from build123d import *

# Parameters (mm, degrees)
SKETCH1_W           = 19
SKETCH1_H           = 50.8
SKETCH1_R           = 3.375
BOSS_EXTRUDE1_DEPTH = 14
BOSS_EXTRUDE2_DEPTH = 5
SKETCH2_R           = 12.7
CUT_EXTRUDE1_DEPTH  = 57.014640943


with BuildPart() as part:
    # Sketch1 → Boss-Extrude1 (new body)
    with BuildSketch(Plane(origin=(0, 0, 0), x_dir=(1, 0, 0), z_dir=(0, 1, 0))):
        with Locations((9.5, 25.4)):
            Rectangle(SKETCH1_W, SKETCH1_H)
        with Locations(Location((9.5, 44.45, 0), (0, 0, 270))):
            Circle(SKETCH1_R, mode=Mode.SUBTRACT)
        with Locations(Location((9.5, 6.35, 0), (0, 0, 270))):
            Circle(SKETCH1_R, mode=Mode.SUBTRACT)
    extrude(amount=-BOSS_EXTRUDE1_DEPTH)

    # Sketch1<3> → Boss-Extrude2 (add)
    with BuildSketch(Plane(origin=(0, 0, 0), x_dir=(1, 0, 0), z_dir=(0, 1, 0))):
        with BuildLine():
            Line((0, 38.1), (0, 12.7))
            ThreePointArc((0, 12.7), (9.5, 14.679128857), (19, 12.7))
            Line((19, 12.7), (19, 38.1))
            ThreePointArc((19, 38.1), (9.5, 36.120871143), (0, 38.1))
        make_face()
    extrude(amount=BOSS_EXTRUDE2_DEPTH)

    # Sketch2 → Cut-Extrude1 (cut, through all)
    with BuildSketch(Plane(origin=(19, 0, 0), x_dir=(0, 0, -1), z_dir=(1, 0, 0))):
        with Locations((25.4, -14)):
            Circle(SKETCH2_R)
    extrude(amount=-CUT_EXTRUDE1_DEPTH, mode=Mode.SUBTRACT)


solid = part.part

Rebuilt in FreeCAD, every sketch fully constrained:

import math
import FreeCAD as App
import Part
import Sketcher
Q = App.Units.Quantity

doc = App.newDocument("Part")
body = doc.addObject("PartDesign::Body", "Body")

# Sketch on XZ plane
sketch1 = doc.addObject("Sketcher::SketchObject", "Sketch")
body.addObject(sketch1)
sketch1.AttachmentSupport = (doc.XZ_Plane, [""])
sketch1.MapMode = "FlatFace"
sketch1.addGeometry(Part.LineSegment(App.Vector(0, -50.8, 0), App.Vector(0, 0, 0)), False)
sketch1.addGeometry(Part.LineSegment(App.Vector(0, 0, 0), App.Vector(19, 0, 0)), False)
sketch1.addGeometry(Part.LineSegment(App.Vector(19, 0, 0), App.Vector(19, -50.8, 0)), False)
sketch1.addGeometry(Part.LineSegment(App.Vector(19, -50.8, 0), App.Vector(0, -50.8, 0)), False)
sketch1.addGeometry(Part.Circle(App.Vector(9.5, -6.3, 0), App.Vector(0, 0, 1), 3.4), False)
sketch1.addGeometry(Part.Circle(App.Vector(9.5, -44.5, 0), App.Vector(0, 0, 1), 3.4), False)
sketch1.addConstraint(Sketcher.Constraint("Coincident", 0, 2, 1, 1))
sketch1.addConstraint(Sketcher.Constraint("Coincident", 1, 2, 2, 1))
sketch1.addConstraint(Sketcher.Constraint("Coincident", 2, 2, 3, 1))
sketch1.addConstraint(Sketcher.Constraint("Coincident", 3, 2, 0, 1))
sketch1.addConstraint(Sketcher.Constraint("Vertical", 0))
sketch1.addConstraint(Sketcher.Constraint("Horizontal", 1))
sketch1.addConstraint(Sketcher.Constraint("Vertical", 2))
sketch1.addConstraint(Sketcher.Constraint("Horizontal", 3))
sketch1.addConstraint(Sketcher.Constraint("Coincident", 0, 2, -1, 1))
sketch1.addConstraint(Sketcher.Constraint("Equal", 4, 5))
sketch1.addConstraint(Sketcher.Constraint("Vertical", 4, 3, 5, 3))
sketch1.addConstraint(Sketcher.Constraint("Diameter", 4, Q("6.75 mm")))
sketch1.addConstraint(Sketcher.Constraint("DistanceX", 1, 1, 1, 2, Q("19 mm")))
sketch1.addConstraint(Sketcher.Constraint("DistanceY", 0, 1, 0, 2, Q("50.8 mm")))
sketch1.addConstraint(Sketcher.Constraint("DistanceX", -1, 1, 4, 3, Q("9.5 mm")))
sketch1.addConstraint(Sketcher.Constraint("DistanceY", 5, 3, 4, 3, Q("38.1 mm")))
sketch1.addConstraint(Sketcher.Constraint("DistanceY", 4, 3, -1, 1, Q("6.35 mm")))
pad1 = doc.addObject("PartDesign::Pad", "Pad")
body.addObject(pad1)
pad1.Profile = sketch1
pad1.Length = 14

# Sketch on XZ plane
sketch2 = doc.addObject("Sketcher::SketchObject", "Sketch001")
body.addObject(sketch2)
sketch2.AttachmentSupport = (doc.XZ_Plane, [""])
sketch2.MapMode = "FlatFace"
sketch2.addGeometry(Part.LineSegment(App.Vector(0, -38, 0), App.Vector(0, -13, 0)), False)
sketch2.addGeometry(Part.ArcOfCircle(Part.Circle(App.Vector(10, 9, 0), App.Vector(0, 0, 1), 24), math.radians(-114), math.radians(-66)), False)
sketch2.addGeometry(Part.LineSegment(App.Vector(19, -13, 0), App.Vector(19, -38, 0)), False)
sketch2.addGeometry(Part.ArcOfCircle(Part.Circle(App.Vector(10, -60, 0), App.Vector(0, 0, 1), 24), math.radians(66), math.radians(114)), False)
sketch2.addConstraint(Sketcher.Constraint("Coincident", 0, 2, 1, 1))
sketch2.addConstraint(Sketcher.Constraint("Coincident", 1, 2, 2, 1))
sketch2.addConstraint(Sketcher.Constraint("Coincident", 2, 2, 3, 1))
sketch2.addConstraint(Sketcher.Constraint("Coincident", 3, 2, 0, 1))
sketch2.addConstraint(Sketcher.Constraint("Vertical", 0))
sketch2.addConstraint(Sketcher.Constraint("Vertical", 2))
sketch2.addConstraint(Sketcher.Constraint("Equal", 1, 3))
sketch2.addConstraint(Sketcher.Constraint("PointOnObject", 0, 2, -2))
sketch2.addConstraint(Sketcher.Constraint("Horizontal", 0, 2, 1, 2))
sketch2.addConstraint(Sketcher.Constraint("Horizontal", 2, 2, 3, 2))
sketch2.addConstraint(Sketcher.Constraint("Radius", 1, Q("23.79 mm")))
sketch2.addConstraint(Sketcher.Constraint("DistanceY", 0, 1, 0, 2, Q("25.4 mm")))
sketch2.addConstraint(Sketcher.Constraint("DistanceX", -1, 1, 1, 2, Q("19 mm")))
sketch2.addConstraint(Sketcher.Constraint("DistanceY", 0, 2, -1, 1, Q("12.7 mm")))
pad2 = doc.addObject("PartDesign::Pad", "Pad001")
body.addObject(pad2)
pad2.Profile = sketch2
pad2.Length = 5
pad2.Reversed = True

# Sketch on YZ plane
sketch3 = doc.addObject("Sketcher::SketchObject", "Sketch002")
body.addObject(sketch3)
sketch3.AttachmentSupport = (doc.YZ_Plane, [""])
sketch3.MapMode = "FlatFace"
sketch3.AttachmentOffset = App.Placement(App.Vector(0, 0, 19), App.Rotation())
sketch3.addGeometry(Part.Circle(App.Vector(-14, -25, 0), App.Vector(0, 0, 1), 13), False)
sketch3.addConstraint(Sketcher.Constraint("Diameter", 0, Q("25.4 mm")))
sketch3.addConstraint(Sketcher.Constraint("DistanceX", 0, 3, -1, 1, Q("14 mm")))
sketch3.addConstraint(Sketcher.Constraint("DistanceY", 0, 3, -1, 1, Q("25.4 mm")))
pocket1 = doc.addObject("PartDesign::Pocket", "Pocket")
body.addObject(pocket1)
pocket1.Profile = sketch3
pocket1.Type = "ThroughAll"

doc.recompute()
